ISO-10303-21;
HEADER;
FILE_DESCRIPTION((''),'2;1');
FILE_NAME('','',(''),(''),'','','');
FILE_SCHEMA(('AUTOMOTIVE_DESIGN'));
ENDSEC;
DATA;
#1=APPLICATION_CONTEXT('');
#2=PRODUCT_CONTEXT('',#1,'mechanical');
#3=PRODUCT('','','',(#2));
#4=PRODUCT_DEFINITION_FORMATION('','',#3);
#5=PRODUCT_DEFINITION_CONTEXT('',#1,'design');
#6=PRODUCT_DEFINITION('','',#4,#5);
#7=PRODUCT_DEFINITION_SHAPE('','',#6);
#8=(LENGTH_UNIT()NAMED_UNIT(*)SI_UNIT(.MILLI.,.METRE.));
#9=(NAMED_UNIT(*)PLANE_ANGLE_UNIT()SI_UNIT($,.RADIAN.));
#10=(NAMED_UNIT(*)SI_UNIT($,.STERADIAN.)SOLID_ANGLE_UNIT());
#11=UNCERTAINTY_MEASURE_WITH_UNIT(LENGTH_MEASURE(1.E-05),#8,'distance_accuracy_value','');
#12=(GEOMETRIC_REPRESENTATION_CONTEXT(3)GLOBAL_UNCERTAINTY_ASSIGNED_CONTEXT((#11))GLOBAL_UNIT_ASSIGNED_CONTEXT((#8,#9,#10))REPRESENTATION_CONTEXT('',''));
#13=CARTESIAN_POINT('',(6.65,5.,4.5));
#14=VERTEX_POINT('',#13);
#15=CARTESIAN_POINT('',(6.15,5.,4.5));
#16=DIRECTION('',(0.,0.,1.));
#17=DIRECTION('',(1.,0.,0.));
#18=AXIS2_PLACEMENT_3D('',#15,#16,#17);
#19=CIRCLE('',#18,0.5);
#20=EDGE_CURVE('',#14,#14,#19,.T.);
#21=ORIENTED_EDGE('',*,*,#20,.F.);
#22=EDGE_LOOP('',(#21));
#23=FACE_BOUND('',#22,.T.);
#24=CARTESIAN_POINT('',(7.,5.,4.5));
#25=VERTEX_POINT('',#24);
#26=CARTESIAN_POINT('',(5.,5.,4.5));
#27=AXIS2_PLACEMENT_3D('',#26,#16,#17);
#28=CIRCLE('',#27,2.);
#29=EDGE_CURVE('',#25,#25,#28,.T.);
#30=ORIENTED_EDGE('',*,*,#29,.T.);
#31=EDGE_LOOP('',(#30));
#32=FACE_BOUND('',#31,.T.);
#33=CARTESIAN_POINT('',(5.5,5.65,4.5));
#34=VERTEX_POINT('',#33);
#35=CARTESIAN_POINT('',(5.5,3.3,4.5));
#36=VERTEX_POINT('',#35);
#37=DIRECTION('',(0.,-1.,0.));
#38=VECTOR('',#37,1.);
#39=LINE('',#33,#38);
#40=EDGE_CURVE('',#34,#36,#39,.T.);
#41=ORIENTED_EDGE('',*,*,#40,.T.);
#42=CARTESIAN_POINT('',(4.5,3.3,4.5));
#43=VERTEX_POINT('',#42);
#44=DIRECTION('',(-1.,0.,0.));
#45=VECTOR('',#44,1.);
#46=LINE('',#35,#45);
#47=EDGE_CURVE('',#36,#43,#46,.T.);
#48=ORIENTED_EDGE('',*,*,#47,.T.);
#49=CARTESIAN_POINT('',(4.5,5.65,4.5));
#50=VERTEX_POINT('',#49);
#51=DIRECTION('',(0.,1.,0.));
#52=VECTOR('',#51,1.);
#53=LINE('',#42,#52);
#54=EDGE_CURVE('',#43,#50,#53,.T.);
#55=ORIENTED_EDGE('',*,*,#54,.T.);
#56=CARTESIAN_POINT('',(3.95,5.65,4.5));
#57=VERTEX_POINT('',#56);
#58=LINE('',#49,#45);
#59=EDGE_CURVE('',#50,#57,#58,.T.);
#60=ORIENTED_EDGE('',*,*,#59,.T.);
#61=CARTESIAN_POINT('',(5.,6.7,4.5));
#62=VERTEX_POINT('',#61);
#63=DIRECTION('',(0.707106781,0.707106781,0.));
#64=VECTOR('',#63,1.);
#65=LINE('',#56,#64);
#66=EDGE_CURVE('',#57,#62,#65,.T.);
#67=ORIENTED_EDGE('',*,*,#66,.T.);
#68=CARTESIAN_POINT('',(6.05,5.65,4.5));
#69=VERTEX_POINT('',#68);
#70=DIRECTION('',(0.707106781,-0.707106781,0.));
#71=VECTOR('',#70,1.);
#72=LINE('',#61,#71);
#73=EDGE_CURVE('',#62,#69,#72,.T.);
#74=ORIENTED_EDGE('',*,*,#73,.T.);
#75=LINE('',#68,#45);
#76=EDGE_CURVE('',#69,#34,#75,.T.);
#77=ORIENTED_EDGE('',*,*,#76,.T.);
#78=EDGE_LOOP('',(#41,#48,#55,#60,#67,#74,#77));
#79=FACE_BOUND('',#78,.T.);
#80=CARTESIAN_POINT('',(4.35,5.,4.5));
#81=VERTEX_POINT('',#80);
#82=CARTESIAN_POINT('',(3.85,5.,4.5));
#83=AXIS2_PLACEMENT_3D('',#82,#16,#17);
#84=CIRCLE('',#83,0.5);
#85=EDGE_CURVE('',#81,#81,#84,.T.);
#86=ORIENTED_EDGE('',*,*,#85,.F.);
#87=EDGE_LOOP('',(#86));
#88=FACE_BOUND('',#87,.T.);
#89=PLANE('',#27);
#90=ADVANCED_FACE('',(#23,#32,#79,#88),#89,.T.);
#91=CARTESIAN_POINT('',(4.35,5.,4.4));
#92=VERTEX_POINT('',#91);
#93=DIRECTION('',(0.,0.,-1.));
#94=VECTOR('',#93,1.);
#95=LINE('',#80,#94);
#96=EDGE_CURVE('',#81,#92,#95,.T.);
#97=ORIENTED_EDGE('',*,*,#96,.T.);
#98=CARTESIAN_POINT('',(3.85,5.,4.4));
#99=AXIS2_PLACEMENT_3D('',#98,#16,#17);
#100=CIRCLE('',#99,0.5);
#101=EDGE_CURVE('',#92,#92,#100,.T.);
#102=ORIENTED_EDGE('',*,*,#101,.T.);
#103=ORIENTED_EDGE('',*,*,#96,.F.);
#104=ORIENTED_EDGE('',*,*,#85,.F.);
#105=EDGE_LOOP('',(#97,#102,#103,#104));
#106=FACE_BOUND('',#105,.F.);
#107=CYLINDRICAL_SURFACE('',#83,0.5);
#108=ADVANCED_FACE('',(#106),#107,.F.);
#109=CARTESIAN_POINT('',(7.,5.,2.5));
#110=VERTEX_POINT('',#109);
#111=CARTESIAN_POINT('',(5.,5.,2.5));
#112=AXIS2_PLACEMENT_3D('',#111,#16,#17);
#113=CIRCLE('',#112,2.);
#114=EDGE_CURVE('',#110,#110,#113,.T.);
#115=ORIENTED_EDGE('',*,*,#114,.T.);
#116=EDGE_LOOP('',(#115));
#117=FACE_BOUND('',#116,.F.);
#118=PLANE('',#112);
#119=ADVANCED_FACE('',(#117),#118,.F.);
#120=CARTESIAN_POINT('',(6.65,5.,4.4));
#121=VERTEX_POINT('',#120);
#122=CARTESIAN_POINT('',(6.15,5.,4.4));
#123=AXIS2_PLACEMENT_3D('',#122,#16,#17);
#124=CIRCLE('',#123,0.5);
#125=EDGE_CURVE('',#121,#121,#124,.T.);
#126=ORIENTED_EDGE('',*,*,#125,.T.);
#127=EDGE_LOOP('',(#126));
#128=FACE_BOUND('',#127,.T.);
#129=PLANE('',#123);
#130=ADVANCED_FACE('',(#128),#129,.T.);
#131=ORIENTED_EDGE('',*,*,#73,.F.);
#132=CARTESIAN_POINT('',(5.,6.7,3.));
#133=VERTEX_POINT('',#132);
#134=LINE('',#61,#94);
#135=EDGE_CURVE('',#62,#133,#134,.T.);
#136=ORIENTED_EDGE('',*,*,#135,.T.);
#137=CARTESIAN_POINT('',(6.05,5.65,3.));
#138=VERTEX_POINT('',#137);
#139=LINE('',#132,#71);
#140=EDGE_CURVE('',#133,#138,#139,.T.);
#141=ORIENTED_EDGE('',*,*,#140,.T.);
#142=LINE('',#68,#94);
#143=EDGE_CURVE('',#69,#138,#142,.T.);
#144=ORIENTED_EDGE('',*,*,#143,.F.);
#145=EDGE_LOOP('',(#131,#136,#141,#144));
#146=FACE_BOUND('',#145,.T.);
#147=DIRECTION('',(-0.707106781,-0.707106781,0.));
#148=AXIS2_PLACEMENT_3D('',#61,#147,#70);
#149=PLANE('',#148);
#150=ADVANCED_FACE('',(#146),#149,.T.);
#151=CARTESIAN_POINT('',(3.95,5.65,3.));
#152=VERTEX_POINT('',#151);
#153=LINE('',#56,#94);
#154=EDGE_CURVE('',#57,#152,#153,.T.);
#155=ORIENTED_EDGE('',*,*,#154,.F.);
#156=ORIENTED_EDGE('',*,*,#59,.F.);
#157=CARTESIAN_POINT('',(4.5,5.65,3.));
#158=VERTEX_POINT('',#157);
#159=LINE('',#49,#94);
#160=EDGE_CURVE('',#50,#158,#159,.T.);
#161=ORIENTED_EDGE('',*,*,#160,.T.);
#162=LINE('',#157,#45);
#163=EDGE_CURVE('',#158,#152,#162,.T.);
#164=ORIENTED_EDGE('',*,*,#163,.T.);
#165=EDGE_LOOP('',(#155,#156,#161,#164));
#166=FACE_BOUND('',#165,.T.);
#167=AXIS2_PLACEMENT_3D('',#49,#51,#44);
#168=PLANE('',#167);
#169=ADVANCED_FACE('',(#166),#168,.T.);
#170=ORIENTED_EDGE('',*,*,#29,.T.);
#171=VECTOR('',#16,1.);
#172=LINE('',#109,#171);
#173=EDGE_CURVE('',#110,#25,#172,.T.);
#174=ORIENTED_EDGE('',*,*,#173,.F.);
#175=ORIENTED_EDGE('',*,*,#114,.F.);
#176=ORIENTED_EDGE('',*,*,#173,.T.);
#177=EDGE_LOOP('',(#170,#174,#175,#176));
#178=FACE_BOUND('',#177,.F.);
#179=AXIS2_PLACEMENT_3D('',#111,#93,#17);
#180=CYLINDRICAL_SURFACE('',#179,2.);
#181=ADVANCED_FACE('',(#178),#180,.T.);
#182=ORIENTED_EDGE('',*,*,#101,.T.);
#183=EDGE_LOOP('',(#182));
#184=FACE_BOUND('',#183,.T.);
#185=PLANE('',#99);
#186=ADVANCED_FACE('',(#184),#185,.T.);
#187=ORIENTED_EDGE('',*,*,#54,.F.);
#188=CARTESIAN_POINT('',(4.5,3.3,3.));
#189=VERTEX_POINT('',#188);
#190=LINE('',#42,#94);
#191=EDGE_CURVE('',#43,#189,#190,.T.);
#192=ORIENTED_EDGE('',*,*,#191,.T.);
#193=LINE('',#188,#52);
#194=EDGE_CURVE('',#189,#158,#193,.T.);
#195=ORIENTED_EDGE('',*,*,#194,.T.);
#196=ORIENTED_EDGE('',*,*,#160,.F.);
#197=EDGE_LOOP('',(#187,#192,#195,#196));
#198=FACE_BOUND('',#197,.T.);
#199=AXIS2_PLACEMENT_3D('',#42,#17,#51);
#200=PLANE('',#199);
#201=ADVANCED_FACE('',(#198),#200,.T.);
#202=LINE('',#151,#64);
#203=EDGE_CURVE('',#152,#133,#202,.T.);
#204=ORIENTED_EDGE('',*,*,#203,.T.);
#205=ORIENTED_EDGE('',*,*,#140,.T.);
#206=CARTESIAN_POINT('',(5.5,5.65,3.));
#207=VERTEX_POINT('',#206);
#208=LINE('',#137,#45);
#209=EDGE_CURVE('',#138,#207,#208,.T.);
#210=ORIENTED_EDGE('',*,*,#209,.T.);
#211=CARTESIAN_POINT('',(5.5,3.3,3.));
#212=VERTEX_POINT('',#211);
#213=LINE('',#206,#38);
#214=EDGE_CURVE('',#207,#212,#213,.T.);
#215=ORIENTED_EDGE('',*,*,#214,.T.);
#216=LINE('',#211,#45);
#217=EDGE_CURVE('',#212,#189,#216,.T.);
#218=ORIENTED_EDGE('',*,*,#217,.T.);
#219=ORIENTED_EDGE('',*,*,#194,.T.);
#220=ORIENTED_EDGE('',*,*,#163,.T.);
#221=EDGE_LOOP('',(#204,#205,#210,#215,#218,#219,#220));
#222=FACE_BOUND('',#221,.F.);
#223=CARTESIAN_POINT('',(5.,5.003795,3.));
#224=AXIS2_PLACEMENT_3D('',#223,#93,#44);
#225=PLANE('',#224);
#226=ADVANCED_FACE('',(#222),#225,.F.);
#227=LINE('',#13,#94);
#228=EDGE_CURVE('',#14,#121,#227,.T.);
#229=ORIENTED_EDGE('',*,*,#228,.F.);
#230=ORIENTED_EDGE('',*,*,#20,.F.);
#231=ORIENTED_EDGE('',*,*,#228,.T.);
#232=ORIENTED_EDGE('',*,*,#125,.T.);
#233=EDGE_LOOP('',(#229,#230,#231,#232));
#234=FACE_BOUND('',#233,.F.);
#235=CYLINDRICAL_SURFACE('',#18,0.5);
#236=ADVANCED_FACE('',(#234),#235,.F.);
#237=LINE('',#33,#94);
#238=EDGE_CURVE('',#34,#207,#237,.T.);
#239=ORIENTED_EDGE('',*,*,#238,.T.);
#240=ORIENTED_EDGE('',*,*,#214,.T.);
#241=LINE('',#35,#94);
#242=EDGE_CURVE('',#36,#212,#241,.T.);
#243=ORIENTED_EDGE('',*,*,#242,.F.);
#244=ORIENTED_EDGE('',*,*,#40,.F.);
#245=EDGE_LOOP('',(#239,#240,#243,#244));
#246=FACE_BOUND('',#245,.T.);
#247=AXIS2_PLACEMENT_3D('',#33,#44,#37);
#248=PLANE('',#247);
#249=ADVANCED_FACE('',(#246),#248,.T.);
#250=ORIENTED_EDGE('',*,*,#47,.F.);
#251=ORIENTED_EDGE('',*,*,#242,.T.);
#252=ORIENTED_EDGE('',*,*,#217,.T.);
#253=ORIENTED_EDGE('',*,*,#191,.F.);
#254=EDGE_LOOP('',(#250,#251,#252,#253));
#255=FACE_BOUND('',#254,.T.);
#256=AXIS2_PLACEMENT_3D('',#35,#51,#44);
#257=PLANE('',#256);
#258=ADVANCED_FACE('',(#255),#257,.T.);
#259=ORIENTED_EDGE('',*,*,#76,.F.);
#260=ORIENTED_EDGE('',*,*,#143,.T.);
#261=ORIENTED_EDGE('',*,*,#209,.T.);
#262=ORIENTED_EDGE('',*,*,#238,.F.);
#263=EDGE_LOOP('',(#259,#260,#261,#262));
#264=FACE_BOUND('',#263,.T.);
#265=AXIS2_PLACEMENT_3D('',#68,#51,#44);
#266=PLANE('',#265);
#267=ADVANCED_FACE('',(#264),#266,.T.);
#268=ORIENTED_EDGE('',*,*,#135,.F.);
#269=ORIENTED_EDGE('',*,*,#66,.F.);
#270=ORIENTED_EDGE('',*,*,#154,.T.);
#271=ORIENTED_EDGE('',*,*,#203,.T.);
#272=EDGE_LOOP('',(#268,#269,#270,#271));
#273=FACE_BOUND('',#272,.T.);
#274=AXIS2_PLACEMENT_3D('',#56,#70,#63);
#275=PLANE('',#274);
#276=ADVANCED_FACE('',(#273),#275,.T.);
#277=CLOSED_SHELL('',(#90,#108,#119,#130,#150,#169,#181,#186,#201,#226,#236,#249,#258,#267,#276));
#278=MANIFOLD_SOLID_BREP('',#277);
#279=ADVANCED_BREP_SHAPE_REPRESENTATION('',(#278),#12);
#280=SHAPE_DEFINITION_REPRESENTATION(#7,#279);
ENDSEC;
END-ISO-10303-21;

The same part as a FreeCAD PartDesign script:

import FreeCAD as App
import Part
import Sketcher
from FreeCAD import Vector

doc = App.newDocument("Part")
body = doc.addObject("PartDesign::Body", "Body")

# Sketch on XY plane
sketch1 = body.newObject("Sketcher::SketchObject", "Sketch")
sketch1.AttachmentSupport = (doc.getObject("XY_Plane"), [""])
sketch1.MapMode = "FlatFace"
sketch1.AttachmentOffset = App.Placement(Vector(0, 0, 2.5), App.Rotation())
sketch1.addGeometry(Part.Circle(Vector(5, 5, 0), Vector(0, 0, 1), 2), False)
sketch1.addConstraint(Sketcher.Constraint("Diameter", 0, 4.0))
sketch1.addConstraint(Sketcher.Constraint("DistanceX", -1, 1, 0, 3, 5.0))
sketch1.addConstraint(Sketcher.Constraint("DistanceY", -1, 1, 0, 3, 5.0))
pad1 = body.newObject("PartDesign::Pad", "Pad")
pad1.Profile = sketch1
pad1.Length = 2

# Sketch on XY plane
sketch2 = body.newObject("Sketcher::SketchObject", "Sketch001")
sketch2.AttachmentSupport = (doc.getObject("XY_Plane"), [""])
sketch2.MapMode = "FlatFace"
sketch2.AttachmentOffset = App.Placement(Vector(0, 0, 4.5), App.Rotation())
sketch2.addGeometry(Part.LineSegment(Vector(4.5, 5.7, 0), Vector(4.5, 3.3, 0)), False)
sketch2.addGeometry(Part.LineSegment(Vector(4.5, 3.3, 0), Vector(5.5, 3.3, 0)), False)
sketch2.addGeometry(Part.LineSegment(Vector(5.5, 3.3, 0), Vector(5.5, 5.7, 0)), False)
sketch2.addGeometry(Part.LineSegment(Vector(5.5, 5.7, 0), Vector(6, 5.7, 0)), False)
sketch2.addGeometry(Part.LineSegment(Vector(6, 5.7, 0), Vector(5, 6.7, 0)), False)
sketch2.addGeometry(Part.LineSegment(Vector(5, 6.7, 0), Vector(4, 5.7, 0)), False)
sketch2.addGeometry(Part.LineSegment(Vector(4, 5.7, 0), Vector(4.5, 5.7, 0)), False)
sketch2.addConstraint(Sketcher.Constraint("Coincident", 0, 2, 1, 1))
sketch2.addConstraint(Sketcher.Constraint("Coincident", 1, 2, 2, 1))
sketch2.addConstraint(Sketcher.Constraint("Coincident", 2, 2, 3, 1))
sketch2.addConstraint(Sketcher.Constraint("Coincident", 3, 2, 4, 1))
sketch2.addConstraint(Sketcher.Constraint("Coincident", 4, 2, 5, 1))
sketch2.addConstraint(Sketcher.Constraint("Coincident", 5, 2, 6, 1))
sketch2.addConstraint(Sketcher.Constraint("Coincident", 6, 2, 0, 1))
sketch2.addConstraint(Sketcher.Constraint("Vertical", 0))
sketch2.addConstraint(Sketcher.Constraint("Horizontal", 1))
sketch2.addConstraint(Sketcher.Constraint("Vertical", 2))
sketch2.addConstraint(Sketcher.Constraint("Horizontal", 3))
sketch2.addConstraint(Sketcher.Constraint("Horizontal", 6))
sketch2.addConstraint(Sketcher.Constraint("Perpendicular", 4, 5))
sketch2.addConstraint(Sketcher.Constraint("Horizontal", 3, 2, 5, 2))
sketch2.addConstraint(Sketcher.Constraint("Equal", 3, 6))
sketch2.addConstraint(Sketcher.Constraint("Equal", 4, 5))
sketch2.addConstraint(Sketcher.Constraint("DistanceX", 1, 1, 1, 2, 1.0))
sketch2.addConstraint(Sketcher.Constraint("DistanceX", -1, 1, 4, 2, 5.0))
sketch2.addConstraint(Sketcher.Constraint("DistanceX", 3, 1, 3, 2, 0.55))
sketch2.addConstraint(Sketcher.Constraint("DistanceY", 0, 2, 0, 1, 2.35))
sketch2.addConstraint(Sketcher.Constraint("DistanceY", -1, 1, 0, 2, 3.3))
pocket1 = body.newObject("PartDesign::Pocket", "Pocket")
pocket1.Profile = sketch2
pocket1.Length = 1.5

# Sketch on XY plane
sketch3 = body.newObject("Sketcher::SketchObject", "Sketch002")
sketch3.AttachmentSupport = (doc.getObject("XY_Plane"), [""])
sketch3.MapMode = "FlatFace"
sketch3.AttachmentOffset = App.Placement(Vector(0, 0, 4.5), App.Rotation())
sketch3.addGeometry(Part.Circle(Vector(3.9, 5, 0), Vector(0, 0, 1), 0.5), False)
sketch3.addGeometry(Part.Circle(Vector(6.2, 5, 0), Vector(0, 0, 1), 0.5), False)
sketch3.addConstraint(Sketcher.Constraint("Equal", 0, 1))
sketch3.addConstraint(Sketcher.Constraint("Horizontal", 0, 3, 1, 3))
sketch3.addConstraint(Sketcher.Constraint("Diameter", 0, 1.0))
sketch3.addConstraint(Sketcher.Constraint("DistanceY", -1, 1, 0, 3, 5.0))
sketch3.addConstraint(Sketcher.Constraint("DistanceX", 0, 3, 1, 3, 2.3))
sketch3.addConstraint(Sketcher.Constraint("DistanceX", -1, 1, 0, 3, 3.85))
pocket2 = body.newObject("PartDesign::Pocket", "Pocket001")
pocket2.Profile = sketch3
pocket2.Length = 0.1

doc.recompute()
